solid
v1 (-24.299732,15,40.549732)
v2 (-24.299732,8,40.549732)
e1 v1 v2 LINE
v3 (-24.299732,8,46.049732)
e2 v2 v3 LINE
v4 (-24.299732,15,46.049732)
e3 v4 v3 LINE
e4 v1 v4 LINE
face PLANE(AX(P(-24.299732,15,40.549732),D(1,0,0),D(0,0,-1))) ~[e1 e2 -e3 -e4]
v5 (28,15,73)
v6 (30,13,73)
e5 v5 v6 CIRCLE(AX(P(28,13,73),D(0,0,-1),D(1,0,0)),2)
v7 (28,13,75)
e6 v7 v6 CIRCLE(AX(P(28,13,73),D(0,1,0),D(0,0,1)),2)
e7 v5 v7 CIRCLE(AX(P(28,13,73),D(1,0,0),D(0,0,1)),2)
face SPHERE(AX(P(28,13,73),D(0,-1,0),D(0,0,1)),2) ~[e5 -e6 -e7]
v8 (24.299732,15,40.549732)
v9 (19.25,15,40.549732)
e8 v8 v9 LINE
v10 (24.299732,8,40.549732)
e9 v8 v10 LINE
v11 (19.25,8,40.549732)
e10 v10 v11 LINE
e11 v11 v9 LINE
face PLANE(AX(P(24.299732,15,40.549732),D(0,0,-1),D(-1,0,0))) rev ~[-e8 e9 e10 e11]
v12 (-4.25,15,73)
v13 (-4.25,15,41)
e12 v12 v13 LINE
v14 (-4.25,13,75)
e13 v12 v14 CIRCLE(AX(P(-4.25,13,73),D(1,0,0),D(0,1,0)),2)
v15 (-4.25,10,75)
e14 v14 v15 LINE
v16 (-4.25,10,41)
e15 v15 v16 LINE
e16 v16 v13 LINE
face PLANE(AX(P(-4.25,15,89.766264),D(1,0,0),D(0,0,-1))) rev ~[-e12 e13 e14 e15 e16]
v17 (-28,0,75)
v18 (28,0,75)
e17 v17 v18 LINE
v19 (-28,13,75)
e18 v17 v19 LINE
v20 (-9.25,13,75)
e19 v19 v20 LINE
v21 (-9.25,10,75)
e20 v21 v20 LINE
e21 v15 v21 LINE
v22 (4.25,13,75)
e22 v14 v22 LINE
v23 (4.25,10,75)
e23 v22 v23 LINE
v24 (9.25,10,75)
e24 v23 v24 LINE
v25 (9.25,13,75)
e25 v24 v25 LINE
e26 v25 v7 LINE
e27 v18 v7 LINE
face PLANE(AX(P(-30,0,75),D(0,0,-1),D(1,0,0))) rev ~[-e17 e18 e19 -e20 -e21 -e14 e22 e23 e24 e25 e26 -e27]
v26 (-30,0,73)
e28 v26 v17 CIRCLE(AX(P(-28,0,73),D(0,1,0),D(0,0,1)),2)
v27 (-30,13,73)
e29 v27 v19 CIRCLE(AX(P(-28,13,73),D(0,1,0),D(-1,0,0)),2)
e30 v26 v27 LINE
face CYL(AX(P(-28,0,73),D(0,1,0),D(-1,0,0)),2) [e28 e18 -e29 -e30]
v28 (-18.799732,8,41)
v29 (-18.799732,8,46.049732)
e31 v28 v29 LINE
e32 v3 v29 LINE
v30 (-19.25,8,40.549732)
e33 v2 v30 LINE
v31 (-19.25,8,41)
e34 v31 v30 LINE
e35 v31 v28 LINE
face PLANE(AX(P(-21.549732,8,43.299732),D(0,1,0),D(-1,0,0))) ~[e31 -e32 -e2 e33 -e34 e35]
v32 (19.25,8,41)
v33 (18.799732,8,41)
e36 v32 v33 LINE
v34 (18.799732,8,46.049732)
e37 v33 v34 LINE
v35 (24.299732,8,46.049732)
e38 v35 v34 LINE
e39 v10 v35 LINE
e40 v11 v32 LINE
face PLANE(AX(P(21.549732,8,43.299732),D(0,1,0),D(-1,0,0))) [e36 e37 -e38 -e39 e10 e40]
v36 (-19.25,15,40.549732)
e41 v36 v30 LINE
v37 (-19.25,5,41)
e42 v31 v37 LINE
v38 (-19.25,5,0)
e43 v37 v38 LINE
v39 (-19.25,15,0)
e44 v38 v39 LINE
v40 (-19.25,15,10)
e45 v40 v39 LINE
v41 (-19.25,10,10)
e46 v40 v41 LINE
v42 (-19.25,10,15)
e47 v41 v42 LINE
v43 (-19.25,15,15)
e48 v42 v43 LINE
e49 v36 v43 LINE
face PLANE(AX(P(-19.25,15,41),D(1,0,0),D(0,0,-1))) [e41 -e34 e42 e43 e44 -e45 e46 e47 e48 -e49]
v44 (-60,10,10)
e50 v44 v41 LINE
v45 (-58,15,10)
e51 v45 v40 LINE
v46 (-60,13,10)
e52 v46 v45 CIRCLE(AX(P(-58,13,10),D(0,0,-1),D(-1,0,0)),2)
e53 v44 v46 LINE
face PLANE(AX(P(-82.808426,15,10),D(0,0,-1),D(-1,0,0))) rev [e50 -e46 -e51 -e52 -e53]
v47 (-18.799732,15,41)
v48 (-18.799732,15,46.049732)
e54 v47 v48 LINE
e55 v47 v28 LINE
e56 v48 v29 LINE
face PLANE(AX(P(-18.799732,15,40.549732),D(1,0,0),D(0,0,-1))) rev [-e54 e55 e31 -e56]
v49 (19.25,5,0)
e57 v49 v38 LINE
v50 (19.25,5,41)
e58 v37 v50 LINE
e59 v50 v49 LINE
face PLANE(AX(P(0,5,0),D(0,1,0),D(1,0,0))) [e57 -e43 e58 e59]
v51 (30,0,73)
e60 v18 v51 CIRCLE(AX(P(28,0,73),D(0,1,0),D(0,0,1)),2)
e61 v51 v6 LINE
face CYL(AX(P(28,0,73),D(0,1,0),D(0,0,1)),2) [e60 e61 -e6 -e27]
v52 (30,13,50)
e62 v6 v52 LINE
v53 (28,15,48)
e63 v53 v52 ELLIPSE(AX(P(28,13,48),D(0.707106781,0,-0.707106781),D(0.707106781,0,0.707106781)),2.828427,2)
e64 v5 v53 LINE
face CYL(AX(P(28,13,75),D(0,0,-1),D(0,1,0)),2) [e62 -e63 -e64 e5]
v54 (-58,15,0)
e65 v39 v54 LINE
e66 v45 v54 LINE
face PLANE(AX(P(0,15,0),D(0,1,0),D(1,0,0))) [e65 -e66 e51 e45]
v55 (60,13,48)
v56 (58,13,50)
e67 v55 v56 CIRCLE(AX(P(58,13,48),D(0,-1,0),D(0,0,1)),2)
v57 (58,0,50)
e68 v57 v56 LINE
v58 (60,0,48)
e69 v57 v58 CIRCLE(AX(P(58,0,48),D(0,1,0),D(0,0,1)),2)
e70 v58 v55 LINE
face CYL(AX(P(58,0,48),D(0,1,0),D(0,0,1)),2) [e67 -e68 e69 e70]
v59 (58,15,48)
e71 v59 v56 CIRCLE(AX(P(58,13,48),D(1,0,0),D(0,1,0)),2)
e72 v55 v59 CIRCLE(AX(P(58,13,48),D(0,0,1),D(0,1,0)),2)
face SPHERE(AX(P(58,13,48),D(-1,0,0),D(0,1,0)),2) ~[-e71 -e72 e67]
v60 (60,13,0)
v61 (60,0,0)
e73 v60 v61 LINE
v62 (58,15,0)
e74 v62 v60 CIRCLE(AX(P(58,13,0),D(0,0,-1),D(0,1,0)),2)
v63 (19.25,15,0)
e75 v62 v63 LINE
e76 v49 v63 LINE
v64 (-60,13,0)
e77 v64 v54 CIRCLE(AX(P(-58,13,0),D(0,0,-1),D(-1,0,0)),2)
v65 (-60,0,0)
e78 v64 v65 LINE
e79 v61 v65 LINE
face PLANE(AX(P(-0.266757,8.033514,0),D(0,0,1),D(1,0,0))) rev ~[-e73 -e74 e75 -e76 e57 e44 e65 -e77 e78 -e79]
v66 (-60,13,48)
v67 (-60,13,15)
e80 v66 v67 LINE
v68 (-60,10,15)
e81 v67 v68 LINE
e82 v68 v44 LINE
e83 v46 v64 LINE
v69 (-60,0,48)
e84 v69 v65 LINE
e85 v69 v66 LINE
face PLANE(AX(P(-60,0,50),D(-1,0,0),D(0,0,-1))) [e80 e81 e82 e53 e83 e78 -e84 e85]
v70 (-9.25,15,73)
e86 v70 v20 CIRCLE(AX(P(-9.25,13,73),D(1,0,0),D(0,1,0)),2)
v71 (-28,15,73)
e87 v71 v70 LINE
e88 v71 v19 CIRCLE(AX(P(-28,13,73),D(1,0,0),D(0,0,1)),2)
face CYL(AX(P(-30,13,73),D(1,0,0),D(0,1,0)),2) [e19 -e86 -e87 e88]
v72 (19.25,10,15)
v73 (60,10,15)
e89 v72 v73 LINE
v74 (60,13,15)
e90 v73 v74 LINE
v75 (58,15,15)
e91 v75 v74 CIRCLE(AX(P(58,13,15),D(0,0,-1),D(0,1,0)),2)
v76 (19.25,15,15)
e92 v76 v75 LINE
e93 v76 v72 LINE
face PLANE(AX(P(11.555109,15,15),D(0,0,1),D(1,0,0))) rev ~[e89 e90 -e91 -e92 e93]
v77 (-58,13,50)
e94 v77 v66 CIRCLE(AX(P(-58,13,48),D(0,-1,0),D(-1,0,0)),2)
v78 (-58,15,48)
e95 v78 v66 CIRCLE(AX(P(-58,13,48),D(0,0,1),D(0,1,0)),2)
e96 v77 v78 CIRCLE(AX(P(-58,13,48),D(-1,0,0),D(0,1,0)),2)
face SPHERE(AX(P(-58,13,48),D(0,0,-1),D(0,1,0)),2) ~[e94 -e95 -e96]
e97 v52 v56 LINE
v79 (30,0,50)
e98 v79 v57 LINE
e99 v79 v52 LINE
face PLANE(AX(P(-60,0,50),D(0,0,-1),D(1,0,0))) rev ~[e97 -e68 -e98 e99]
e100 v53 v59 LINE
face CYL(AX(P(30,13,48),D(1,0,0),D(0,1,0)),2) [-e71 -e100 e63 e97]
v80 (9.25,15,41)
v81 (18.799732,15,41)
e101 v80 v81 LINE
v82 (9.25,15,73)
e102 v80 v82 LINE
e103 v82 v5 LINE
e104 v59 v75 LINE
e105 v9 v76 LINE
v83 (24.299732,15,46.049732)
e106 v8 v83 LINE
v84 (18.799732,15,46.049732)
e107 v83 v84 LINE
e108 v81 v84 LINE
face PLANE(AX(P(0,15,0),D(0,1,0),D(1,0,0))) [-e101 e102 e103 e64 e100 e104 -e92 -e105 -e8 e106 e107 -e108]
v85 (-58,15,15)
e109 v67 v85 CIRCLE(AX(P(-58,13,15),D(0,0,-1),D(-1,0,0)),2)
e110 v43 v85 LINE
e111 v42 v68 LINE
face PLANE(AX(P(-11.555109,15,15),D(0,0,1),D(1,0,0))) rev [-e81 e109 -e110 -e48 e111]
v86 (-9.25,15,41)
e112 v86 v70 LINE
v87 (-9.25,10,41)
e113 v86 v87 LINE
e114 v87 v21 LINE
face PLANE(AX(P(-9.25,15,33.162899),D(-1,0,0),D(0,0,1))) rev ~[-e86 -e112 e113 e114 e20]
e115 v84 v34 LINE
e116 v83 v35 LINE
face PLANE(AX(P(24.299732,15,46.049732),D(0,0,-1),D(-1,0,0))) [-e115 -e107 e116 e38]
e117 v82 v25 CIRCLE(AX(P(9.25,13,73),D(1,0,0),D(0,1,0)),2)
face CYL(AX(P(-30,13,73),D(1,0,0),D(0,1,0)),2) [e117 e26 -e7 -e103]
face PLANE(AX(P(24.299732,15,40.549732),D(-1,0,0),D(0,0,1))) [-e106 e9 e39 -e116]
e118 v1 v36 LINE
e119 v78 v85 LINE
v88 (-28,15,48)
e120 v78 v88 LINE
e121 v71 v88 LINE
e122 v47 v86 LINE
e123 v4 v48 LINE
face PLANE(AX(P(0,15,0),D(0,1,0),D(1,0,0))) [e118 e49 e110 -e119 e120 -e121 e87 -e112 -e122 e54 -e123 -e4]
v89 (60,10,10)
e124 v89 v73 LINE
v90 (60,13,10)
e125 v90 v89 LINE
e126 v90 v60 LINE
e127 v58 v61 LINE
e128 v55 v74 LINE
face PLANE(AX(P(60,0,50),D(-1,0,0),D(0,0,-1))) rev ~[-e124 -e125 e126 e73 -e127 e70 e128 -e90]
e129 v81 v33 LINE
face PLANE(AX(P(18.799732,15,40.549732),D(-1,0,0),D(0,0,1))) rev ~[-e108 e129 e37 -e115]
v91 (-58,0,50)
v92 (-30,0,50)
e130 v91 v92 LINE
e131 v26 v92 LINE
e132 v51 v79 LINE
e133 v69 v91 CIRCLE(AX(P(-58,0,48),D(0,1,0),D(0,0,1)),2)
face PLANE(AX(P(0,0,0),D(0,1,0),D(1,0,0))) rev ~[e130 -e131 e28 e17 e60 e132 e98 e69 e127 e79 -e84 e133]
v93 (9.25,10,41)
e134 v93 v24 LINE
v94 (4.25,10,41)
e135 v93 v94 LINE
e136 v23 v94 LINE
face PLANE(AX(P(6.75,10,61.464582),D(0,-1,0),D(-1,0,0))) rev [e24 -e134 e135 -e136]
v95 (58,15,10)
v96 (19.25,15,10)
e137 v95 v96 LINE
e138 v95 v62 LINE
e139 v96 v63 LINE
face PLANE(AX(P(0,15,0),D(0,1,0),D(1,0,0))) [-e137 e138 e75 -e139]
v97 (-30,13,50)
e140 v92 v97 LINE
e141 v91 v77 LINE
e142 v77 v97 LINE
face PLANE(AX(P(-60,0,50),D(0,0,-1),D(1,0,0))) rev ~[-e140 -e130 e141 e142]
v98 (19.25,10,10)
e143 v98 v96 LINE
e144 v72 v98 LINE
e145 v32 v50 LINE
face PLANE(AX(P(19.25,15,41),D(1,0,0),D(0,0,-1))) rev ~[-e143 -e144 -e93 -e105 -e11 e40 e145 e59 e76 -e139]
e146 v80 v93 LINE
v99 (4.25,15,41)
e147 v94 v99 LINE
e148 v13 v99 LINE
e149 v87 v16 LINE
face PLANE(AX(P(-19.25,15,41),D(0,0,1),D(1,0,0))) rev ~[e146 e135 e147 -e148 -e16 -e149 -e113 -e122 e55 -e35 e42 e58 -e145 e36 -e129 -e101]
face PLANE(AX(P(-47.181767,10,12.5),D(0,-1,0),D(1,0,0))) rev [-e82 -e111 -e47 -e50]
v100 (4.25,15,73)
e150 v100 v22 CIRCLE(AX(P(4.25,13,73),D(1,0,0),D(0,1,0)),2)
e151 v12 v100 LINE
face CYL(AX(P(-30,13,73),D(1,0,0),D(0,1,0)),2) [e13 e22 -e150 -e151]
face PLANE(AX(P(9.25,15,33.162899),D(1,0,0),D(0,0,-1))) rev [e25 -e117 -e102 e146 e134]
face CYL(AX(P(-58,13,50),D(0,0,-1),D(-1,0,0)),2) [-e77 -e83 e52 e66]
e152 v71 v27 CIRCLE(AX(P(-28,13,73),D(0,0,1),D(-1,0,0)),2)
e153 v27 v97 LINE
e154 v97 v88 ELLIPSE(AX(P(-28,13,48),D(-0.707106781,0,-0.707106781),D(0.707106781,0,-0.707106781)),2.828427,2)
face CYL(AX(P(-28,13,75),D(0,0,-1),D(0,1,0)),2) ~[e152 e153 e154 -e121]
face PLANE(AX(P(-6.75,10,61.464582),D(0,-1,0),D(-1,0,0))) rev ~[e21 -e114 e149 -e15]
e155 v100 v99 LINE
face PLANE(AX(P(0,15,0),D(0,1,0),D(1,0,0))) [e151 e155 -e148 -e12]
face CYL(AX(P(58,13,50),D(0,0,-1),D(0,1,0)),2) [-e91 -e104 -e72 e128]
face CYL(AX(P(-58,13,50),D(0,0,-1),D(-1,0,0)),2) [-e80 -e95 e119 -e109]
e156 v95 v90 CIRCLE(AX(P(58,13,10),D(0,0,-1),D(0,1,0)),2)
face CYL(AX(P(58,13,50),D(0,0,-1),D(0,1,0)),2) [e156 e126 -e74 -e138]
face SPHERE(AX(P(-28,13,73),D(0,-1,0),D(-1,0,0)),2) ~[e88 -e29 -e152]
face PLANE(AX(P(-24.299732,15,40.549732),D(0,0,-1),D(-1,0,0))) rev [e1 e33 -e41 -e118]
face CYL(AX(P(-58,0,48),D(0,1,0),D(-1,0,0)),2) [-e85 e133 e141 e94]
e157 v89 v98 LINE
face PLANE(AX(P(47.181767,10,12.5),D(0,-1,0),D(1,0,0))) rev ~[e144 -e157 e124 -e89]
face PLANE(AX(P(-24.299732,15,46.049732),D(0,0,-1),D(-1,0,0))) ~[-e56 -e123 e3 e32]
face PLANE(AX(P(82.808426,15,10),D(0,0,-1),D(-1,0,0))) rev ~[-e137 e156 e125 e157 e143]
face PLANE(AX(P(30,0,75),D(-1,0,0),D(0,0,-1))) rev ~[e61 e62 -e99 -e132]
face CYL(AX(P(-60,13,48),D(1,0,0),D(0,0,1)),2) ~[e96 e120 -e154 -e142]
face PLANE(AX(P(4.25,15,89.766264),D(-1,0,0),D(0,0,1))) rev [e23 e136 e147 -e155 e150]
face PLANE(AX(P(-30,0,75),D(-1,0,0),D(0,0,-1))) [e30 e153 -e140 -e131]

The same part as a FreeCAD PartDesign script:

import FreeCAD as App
import Part
import Sketcher
Q = App.Units.Quantity


def edges_at(feature, points):
    """Names of the edges that pass closest to the given points."""
    edges = feature.Shape.Edges
    near = lambda p: min(range(len(edges)), key=lambda i: edges[i].distToShape(Part.Vertex(*p))[0])
    return sorted({f"Edge{near(p) + 1}" for p in points})


def add_polygon(sketch, points):
    """Adds a closed chain of lines whose ends are joined by coincident constraints."""
    first, n = sketch.GeometryCount, len(points)
    for a, b in zip(points, points[1:] + points[:1]):
        sketch.addGeometry(Part.LineSegment(App.Vector(*a, 0), App.Vector(*b, 0)), False)
    for i in range(n):
        sketch.addConstraint(Sketcher.Constraint("Coincident", first + i, 2, first + (i + 1) % n, 1))

doc = App.newDocument("Part")
body = doc.addObject("PartDesign::Body", "Body")

# Sketch on XZ plane
sketch1 = doc.addObject("Sketcher::SketchObject", "Sketch")
body.addObject(sketch1)
sketch1.AttachmentSupport = (doc.XZ_Plane, [""])
sketch1.MapMode = "FlatFace"
add_polygon(sketch1, [(-60, -50), (-60, 50), (60, 50), (60, -50)])  # lines 0-3
sketch1.addConstraint([
    Sketcher.Constraint("Vertical", 0),
    Sketcher.Constraint("Horizontal", 1),
    Sketcher.Constraint("Vertical", 2),
    Sketcher.Constraint("Horizontal", 3),
    Sketcher.Constraint("Symmetric", 0, 2, 2, 2, -1, 1),
    Sketcher.Constraint("DistanceX", 1, 1, 1, 2, Q("120 mm")),
    Sketcher.Constraint("DistanceY", 0, 1, 0, 2, Q("100 mm")),
])
pad1 = doc.addObject("PartDesign::Pad", "Pad")
body.addObject(pad1)
pad1.Profile = sketch1
pad1.Length = 15
pad1.Reversed = True

# Sketch on XZ plane
sketch2 = doc.addObject("Sketcher::SketchObject", "Sketch001")
body.addObject(sketch2)
sketch2.AttachmentSupport = (doc.XZ_Plane, [""])
sketch2.MapMode = "FlatFace"
add_polygon(sketch2, [(-30, 50), (-30, 75), (30, 75), (30, 50)])  # lines 0-3
add_polygon(sketch2, [(-30, -75), (-30, -50), (30, -50), (30, -75)])  # lines 4-7
sketch2.addConstraint([
    Sketcher.Constraint("Vertical", 0),
    Sketcher.Constraint("Horizontal", 1),
    Sketcher.Constraint("Vertical", 2),
    Sketcher.Constraint("Horizontal", 3),
    Sketcher.Constraint("Vertical", 4),
    Sketcher.Constraint("Horizontal", 5),
    Sketcher.Constraint("Vertical", 6),
    Sketcher.Constraint("Horizontal", 7),
    Sketcher.Constraint("Symmetric", 2, 2, 4, 2, -1, 1),
    Sketcher.Constraint("Symmetric", 0, 2, 6, 2, -1, 1),
    Sketcher.Constraint("Vertical", 3, 2, 4, 2),
    Sketcher.Constraint("DistanceX", 1, 1, 1, 2, Q("60 mm")),
    Sketcher.Constraint("DistanceY", 0, 1, 0, 2, Q("25 mm")),
    Sketcher.Constraint("DistanceY", -1, 1, 0, 2, Q("75 mm")),
])
pad2 = doc.addObject("PartDesign::Pad", "Pad001")
body.addObject(pad2)
pad2.Profile = sketch2
pad2.Length = 15
pad2.Reversed = True
doc.recompute()

fillet = doc.addObject("PartDesign::Fillet", "Fillet")
body.addObject(fillet)
fillet.Base = (pad2, edges_at(pad2, [
    (-60, 15, 0),
    (45, 15, 50),
    (-45, 15, 50),
    (-30, 7.5, 75),
    (30, 7.5, 75),
    (-30, 15, 62.5),
    (0, 15, 75),
    (30, 15, 62.5),
    (-45, 15, -50),
    (0, 15, -75),
    (30, 7.5, -75),
    (-30, 15, -62.5),
    (-30, 7.5, -75),
    (30, 15, -62.5),
    (60, 15, 0),
    (60, 7.5, 50),
    (-60, 7.5, 50),
    (-60, 7.5, -50),
    (60, 7.5, -50),
    (45, 15, -50),
]))
fillet.Radius = 2

# Sketch on XZ plane
sketch3 = doc.addObject("Sketcher::SketchObject", "Sketch002")
body.addObject(sketch3)
sketch3.AttachmentSupport = (doc.XZ_Plane, [""])
sketch3.MapMode = "FlatFace"
sketch3.AttachmentOffset = App.Placement(App.Vector(0, 0, -15), App.Rotation())
add_polygon(sketch3, [(-19.25, -41), (-19.25, 41), (19.25, 41), (19.25, -41)])  # lines 0-3
sketch3.addConstraint([
    Sketcher.Constraint("Vertical", 0),
    Sketcher.Constraint("Horizontal", 1),
    Sketcher.Constraint("Vertical", 2),
    Sketcher.Constraint("Horizontal", 3),
    Sketcher.Constraint("Symmetric", 0, 2, 2, 2, -1, 1),
    Sketcher.Constraint("DistanceY", 0, 1, 0, 2, Q("82 mm")),
    Sketcher.Constraint("DistanceX", 1, 1, 1, 2, Q("38.5 mm")),
])
pocket1 = doc.addObject("PartDesign::Pocket", "Pocket")
body.addObject(pocket1)
pocket1.Profile = sketch3
pocket1.Length = 10
pocket1.Reversed = True

# Sketch on XZ plane
sketch4 = doc.addObject("Sketcher::SketchObject", "Sketch003")
body.addObject(sketch4)
sketch4.AttachmentSupport = (doc.XZ_Plane, [""])
sketch4.MapMode = "FlatFace"
sketch4.AttachmentOffset = App.Placement(App.Vector(0, 0, -15), App.Rotation())
add_polygon(sketch4, [(-9.25, 33.162899), (-9.25, 89.766264), (-4.25, 89.766264), (-4.25, 33.162899)])  # lines 0-3
add_polygon(sketch4, [(-11.555109, -15), (-82.808426, -15), (-82.808426, -10), (-11.555109, -10)])  # lines 4-7
sketch4.addConstraint([
    Sketcher.Constraint("Vertical", 0),
    Sketcher.Constraint("Horizontal", 1),
    Sketcher.Constraint("Vertical", 2),
    Sketcher.Constraint("Horizontal", 3),
    Sketcher.Constraint("Horizontal", 4),
    Sketcher.Constraint("Vertical", 5),
    Sketcher.Constraint("Horizontal", 6),
    Sketcher.Constraint("Vertical", 7),
    Sketcher.Constraint("Equal", 3, 5),
    Sketcher.Constraint("DistanceX", 1, 1, 1, 2, Q("5 mm")),
    Sketcher.Constraint("DistanceY", 4, 2, -1, 1, Q("15 mm")),
    Sketcher.Constraint("DistanceX", 0, 2, -1, 1, Q("9.25 mm")),
    Sketcher.Constraint("DistanceY", -1, 1, 2, 2, Q("33.162899 mm")),
    Sketcher.Constraint("DistanceX", 4, 2, 4, 1, Q("71.253317 mm")),
    Sketcher.Constraint("DistanceY", 0, 1, 0, 2, Q("56.603365 mm")),
    Sketcher.Constraint("DistanceX", 6, 2, -1, 1, Q("11.555109 mm")),
])
pocket2 = doc.addObject("PartDesign::Pocket", "Pocket001")
body.addObject(pocket2)
pocket2.Profile = sketch4
pocket2.Length = 5
pocket2.Reversed = True

# Sketch on XZ plane
sketch5 = doc.addObject("Sketcher::SketchObject", "Sketch004")
body.addObject(sketch5)
sketch5.AttachmentSupport = (doc.XZ_Plane, [""])
sketch5.MapMode = "FlatFace"
sketch5.AttachmentOffset = App.Placement(App.Vector(0, 0, -15), App.Rotation())
add_polygon(sketch5, [(-24.299732, -46.049732), (-24.299732, -40.549732), (-18.799732, -40.549732), (-18.799732, -46.049732)])  # lines 0-3
sketch5.addConstraint([
    Sketcher.Constraint("Vertical", 0),
    Sketcher.Constraint("Horizontal", 1),
    Sketcher.Constraint("Vertical", 2),
    Sketcher.Constraint("Horizontal", 3),
    Sketcher.Constraint("Equal", 3, 0),
    Sketcher.Constraint("DistanceX", 1, 1, 1, 2, Q("5.5 mm")),
    Sketcher.Constraint("DistanceX", 0, 2, -1, 1, Q("24.299732 mm")),
    Sketcher.Constraint("DistanceY", 0, 2, -1, 1, Q("40.549732 mm")),
])
pocket3 = doc.addObject("PartDesign::Pocket", "Pocket002")
body.addObject(pocket3)
pocket3.Profile = sketch5
pocket3.Length = 7
pocket3.Reversed = True
doc.recompute()

mirrored = doc.addObject("PartDesign::Mirrored", "Mirrored")
body.addObject(mirrored)
mirrored.Originals = [pocket3]
mirrored.MirrorPlane = (doc.YZ_Plane, [""])
body.Tip = mirrored
doc.recompute()

mirrored2 = doc.addObject("PartDesign::Mirrored", "Mirrored001")
body.addObject(mirrored2)
mirrored2.Originals = [pocket3]
mirrored2.MirrorPlane = (doc.XY_Plane, [""])
body.Tip = mirrored2

# Sketch on XZ plane
sketch6 = doc.addObject("Sketcher::SketchObject", "Sketch005")
body.addObject(sketch6)
sketch6.AttachmentSupport = (doc.XZ_Plane, [""])
sketch6.MapMode = "FlatFace"
sketch6.AttachmentOffset = App.Placement(App.Vector(0, 0, -15), App.Rotation())
add_polygon(sketch6, [(24.299732, 46.049732), (24.299732, 40.549732), (18.799732, 40.549732), (18.799732, 46.049732)])  # lines 0-3
sketch6.addConstraint([
    Sketcher.Constraint("Vertical", 0),
    Sketcher.Constraint("Horizontal", 1),
    Sketcher.Constraint("Vertical", 2),
    Sketcher.Constraint("Horizontal", 3),
    Sketcher.Constraint("Equal", 3, 0),
    Sketcher.Constraint("DistanceX", 1, 2, 1, 1, Q("5.5 mm")),
    Sketcher.Constraint("DistanceX", -1, 1, 0, 2, Q("24.299732 mm")),
    Sketcher.Constraint("DistanceY", -1, 1, 0, 2, Q("40.549732 mm")),
])
pocket4 = doc.addObject("PartDesign::Pocket", "Pocket003")
body.addObject(pocket4)
pocket4.Profile = sketch6
pocket4.Length = 7
pocket4.Reversed = True
doc.recompute()

mirrored3 = doc.addObject("PartDesign::Mirrored", "Mirrored002")
body.addObject(mirrored3)
mirrored3.Originals = [pocket2]
mirrored3.MirrorPlane = (doc.YZ_Plane, [""])
body.Tip = mirrored3
doc.recompute()

mirrored4 = doc.addObject("PartDesign::Mirrored", "Mirrored003")
body.addObject(mirrored4)
mirrored4.Originals = [pocket2]
mirrored4.MirrorPlane = (doc.XY_Plane, [""])
body.Tip = mirrored4

# Sketch on XZ plane
sketch7 = doc.addObject("Sketcher::SketchObject", "Sketch006")
body.addObject(sketch7)
sketch7.AttachmentSupport = (doc.XZ_Plane, [""])
sketch7.MapMode = "FlatFace"
sketch7.AttachmentOffset = App.Placement(App.Vector(0, 0, -15), App.Rotation())
add_polygon(sketch7, [(9.25, -33.162899), (9.25, -89.766264), (4.25, -89.766264), (4.25, -33.162899)])  # lines 0-3
add_polygon(sketch7, [(11.555109, 15), (82.808426, 15), (82.808426, 10), (11.555109, 10)])  # lines 4-7
sketch7.addConstraint([
    Sketcher.Constraint("Vertical", 0),
    Sketcher.Constraint("Horizontal", 1),
    Sketcher.Constraint("Vertical", 2),
    Sketcher.Constraint("Horizontal", 3),
    Sketcher.Constraint("Horizontal", 4),
    Sketcher.Constraint("Vertical", 5),
    Sketcher.Constraint("Horizontal", 6),
    Sketcher.Constraint("Vertical", 7),
    Sketcher.Constraint("Equal", 3, 5),
    Sketcher.Constraint("DistanceX", 1, 2, 1, 1, Q("5 mm")),
    Sketcher.Constraint("DistanceY", -1, 1, 4, 2, Q("15 mm")),
    Sketcher.Constraint("DistanceX", -1, 1, 0, 2, Q("9.25 mm")),
    Sketcher.Constraint("DistanceY", 2, 2, -1, 1, Q("33.162899 mm")),
    Sketcher.Constraint("DistanceX", 4, 1, 4, 2, Q("71.253317 mm")),
    Sketcher.Constraint("DistanceY", 0, 2, 0, 1, Q("56.603365 mm")),
    Sketcher.Constraint("DistanceX", -1, 1, 6, 2, Q("11.555109 mm")),
])
pocket5 = doc.addObject("PartDesign::Pocket", "Pocket004")
body.addObject(pocket5)
pocket5.Profile = sketch7
pocket5.Length = 5
pocket5.Reversed = True

# Sketch on XY plane
sketch8 = doc.addObject("Sketcher::SketchObject", "Sketch007")
body.addObject(sketch8)
sketch8.AttachmentSupport = (doc.XY_Plane, [""])
sketch8.MapMode = "FlatFace"
add_polygon(sketch8, [(-66.155789, 18.903871), (-66.155789, -2.836842), (65.622275, -2.836842), (65.622275, 18.903871)])  # lines 0-3
sketch8.addConstraint([
    Sketcher.Constraint("Vertical", 0),
    Sketcher.Constraint("Horizontal", 1),
    Sketcher.Constraint("Vertical", 2),
    Sketcher.Constraint("Horizontal", 3),
    Sketcher.Constraint("DistanceX", 1, 1, 1, 2, Q("131.778064 mm")),
    Sketcher.Constraint("DistanceY", 0, 2, 0, 1, Q("21.740713 mm")),
    Sketcher.Constraint("DistanceX", 0, 2, -1, 1, Q("66.155789 mm")),
    Sketcher.Constraint("DistanceY", -1, 1, 2, 2, Q("18.903871 mm")),
])
pocket6 = doc.addObject("PartDesign::Pocket", "Pocket005")
body.addObject(pocket6)
pocket6.Profile = sketch8
pocket6.Length = 75

doc.recompute()
